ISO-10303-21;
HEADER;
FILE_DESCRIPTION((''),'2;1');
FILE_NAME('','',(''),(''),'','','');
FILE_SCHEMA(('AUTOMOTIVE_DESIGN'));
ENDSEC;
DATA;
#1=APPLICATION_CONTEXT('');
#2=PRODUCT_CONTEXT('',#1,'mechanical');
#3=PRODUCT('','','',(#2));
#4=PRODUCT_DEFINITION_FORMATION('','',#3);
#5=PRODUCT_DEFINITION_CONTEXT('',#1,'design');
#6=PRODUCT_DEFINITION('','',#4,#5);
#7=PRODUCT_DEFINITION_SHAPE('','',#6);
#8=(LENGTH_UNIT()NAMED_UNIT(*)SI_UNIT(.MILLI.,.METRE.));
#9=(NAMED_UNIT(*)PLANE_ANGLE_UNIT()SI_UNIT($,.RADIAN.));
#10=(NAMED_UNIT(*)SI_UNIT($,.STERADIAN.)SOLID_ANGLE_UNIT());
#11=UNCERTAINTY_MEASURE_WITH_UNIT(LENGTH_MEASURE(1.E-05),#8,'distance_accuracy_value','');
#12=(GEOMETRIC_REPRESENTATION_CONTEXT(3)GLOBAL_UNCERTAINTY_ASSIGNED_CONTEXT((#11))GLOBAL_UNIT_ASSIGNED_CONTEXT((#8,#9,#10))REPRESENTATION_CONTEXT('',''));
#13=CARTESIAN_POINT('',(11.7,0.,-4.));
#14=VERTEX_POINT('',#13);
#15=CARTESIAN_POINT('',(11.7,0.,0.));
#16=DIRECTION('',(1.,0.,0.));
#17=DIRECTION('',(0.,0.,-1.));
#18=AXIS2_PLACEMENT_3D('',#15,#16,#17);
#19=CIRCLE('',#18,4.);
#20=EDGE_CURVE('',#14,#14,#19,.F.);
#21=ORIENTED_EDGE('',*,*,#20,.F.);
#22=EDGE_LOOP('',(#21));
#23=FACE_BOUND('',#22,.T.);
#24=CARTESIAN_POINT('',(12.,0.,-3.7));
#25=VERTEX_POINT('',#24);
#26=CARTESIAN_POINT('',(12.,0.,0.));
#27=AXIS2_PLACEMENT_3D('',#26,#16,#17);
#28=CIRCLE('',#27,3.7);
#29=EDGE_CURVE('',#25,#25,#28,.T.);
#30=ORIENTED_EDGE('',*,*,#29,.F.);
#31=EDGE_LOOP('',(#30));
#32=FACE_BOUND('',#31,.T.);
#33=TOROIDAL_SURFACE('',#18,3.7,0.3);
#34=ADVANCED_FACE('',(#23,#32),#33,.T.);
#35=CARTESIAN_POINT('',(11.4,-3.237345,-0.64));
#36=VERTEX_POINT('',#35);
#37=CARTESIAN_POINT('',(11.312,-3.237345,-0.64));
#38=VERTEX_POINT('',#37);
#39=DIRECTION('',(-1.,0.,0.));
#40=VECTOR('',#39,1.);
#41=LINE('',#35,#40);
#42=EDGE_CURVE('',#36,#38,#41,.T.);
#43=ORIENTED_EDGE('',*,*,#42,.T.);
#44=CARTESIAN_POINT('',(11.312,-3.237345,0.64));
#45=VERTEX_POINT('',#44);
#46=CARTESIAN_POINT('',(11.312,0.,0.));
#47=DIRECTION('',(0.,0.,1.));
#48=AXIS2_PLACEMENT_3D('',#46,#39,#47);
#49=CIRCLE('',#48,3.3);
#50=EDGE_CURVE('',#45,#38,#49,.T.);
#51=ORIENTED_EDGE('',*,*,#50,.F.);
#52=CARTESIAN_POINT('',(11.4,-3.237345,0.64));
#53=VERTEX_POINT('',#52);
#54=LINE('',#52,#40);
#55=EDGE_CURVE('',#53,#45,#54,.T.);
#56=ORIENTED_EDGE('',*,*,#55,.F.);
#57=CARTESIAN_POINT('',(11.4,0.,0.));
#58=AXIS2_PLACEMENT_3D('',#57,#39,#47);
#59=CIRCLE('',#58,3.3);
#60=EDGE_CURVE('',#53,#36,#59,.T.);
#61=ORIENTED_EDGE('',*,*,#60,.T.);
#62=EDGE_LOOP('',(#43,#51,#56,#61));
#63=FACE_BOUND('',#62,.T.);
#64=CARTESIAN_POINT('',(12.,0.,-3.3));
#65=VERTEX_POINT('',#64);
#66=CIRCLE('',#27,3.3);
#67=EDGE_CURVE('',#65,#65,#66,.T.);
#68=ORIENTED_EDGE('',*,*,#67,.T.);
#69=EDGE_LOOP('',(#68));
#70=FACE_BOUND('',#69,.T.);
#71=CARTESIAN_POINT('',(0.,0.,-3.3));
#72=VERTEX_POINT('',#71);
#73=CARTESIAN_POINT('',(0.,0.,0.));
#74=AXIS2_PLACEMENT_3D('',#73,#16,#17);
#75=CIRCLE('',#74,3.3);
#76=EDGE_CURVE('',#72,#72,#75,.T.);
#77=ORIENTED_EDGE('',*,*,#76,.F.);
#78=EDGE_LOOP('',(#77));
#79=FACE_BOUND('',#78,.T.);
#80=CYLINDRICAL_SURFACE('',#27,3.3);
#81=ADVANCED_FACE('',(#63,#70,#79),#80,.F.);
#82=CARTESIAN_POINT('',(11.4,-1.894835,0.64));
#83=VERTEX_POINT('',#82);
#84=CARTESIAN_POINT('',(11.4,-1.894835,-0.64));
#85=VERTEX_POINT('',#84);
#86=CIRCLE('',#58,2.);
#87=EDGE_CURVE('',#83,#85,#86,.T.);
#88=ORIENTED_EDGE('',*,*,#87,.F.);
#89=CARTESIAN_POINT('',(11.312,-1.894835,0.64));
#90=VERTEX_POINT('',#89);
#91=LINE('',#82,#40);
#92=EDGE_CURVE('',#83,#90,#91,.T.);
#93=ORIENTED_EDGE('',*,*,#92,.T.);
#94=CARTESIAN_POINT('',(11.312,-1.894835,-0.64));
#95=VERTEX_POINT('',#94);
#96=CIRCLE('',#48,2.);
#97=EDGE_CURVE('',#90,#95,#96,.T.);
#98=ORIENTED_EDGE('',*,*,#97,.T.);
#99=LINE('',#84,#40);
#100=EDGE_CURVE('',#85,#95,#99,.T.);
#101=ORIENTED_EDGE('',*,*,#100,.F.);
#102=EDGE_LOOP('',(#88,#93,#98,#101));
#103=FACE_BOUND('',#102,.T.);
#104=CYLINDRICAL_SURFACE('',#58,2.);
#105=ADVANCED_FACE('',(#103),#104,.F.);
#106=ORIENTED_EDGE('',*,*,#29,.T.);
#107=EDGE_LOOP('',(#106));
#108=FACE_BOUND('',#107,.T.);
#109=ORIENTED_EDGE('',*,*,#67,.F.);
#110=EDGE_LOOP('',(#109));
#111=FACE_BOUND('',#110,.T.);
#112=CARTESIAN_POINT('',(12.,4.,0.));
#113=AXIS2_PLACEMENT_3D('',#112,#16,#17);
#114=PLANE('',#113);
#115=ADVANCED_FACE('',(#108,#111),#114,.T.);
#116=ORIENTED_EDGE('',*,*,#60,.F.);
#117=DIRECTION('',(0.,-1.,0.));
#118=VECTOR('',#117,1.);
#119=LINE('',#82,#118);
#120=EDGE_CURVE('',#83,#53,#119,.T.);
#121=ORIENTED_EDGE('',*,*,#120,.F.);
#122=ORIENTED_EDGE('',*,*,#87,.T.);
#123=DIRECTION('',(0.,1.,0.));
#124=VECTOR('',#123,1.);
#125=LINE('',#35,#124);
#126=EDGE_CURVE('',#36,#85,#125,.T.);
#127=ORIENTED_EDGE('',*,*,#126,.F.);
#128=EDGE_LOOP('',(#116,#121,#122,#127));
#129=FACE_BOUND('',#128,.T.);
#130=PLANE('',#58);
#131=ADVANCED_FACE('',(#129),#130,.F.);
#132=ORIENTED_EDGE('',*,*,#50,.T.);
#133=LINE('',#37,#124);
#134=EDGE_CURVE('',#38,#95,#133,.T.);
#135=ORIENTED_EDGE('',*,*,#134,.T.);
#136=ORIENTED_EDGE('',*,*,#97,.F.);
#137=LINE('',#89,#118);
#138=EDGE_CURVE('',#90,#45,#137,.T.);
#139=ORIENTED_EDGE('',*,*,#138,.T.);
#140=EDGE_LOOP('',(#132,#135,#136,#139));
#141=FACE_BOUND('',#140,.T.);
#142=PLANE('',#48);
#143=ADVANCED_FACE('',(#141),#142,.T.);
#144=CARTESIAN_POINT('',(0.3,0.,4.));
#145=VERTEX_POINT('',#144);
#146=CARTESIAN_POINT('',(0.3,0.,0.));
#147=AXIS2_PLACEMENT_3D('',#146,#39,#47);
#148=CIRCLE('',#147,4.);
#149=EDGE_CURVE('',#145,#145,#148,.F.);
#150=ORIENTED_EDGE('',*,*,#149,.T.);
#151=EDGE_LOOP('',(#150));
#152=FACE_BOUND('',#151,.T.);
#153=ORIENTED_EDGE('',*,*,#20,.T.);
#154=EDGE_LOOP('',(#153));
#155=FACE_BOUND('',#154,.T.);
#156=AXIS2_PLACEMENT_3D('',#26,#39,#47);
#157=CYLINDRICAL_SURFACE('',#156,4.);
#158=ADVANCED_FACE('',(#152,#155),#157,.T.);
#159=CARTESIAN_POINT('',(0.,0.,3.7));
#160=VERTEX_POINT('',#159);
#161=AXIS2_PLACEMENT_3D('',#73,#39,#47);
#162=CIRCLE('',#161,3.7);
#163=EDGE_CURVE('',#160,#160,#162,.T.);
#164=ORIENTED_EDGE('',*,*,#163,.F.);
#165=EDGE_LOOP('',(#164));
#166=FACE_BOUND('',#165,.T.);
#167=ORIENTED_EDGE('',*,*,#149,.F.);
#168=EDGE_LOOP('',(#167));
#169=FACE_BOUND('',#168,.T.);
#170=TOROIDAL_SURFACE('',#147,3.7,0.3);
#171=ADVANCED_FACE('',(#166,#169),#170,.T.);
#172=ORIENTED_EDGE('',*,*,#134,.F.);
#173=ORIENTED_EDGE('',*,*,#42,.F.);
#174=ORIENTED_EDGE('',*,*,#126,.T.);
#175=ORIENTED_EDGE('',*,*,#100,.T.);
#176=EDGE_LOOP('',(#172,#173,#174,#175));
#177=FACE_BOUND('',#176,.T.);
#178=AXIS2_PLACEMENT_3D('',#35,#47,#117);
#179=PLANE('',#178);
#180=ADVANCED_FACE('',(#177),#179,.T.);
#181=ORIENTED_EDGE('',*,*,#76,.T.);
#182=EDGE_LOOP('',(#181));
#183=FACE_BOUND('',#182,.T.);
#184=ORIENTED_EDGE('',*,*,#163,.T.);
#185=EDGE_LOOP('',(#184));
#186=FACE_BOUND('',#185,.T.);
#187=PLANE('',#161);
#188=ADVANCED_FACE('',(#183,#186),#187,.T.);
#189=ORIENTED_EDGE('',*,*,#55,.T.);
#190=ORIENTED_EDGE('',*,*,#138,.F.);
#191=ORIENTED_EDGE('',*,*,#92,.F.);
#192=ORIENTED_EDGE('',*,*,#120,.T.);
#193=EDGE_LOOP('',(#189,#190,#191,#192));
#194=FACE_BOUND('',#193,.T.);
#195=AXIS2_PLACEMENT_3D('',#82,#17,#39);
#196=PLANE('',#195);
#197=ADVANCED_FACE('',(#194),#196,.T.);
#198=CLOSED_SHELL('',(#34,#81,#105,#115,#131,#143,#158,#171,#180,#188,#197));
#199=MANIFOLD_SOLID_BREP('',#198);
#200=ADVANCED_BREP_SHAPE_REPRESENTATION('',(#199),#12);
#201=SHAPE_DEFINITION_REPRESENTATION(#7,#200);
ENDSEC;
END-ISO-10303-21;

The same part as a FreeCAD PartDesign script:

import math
import FreeCAD as App
import Part
import Sketcher
from FreeCAD import Vector
Q = App.Units.Quantity


def edges_at(feature, points):
    """Names of the edges that pass closest to the given points."""
    edges = feature.Shape.Edges
    near = lambda p: min(range(len(edges)), key=lambda i: edges[i].distToShape(Part.Vertex(*p))[0])
    return sorted({f"Edge{near(p) + 1}" for p in points})

doc = App.newDocument("Part")
body = doc.addObject("PartDesign::Body", "Body")

sketch1 = body.newObject("Sketcher::SketchObject", "Sketch")
sketch1.AttachmentSupport = (doc.getObject("XY_Plane"), [""])
sketch1.MapMode = "FlatFace"
sketch1.addGeometry([
    Part.LineSegment(Vector(12, 4, 0), Vector(12, 0, 0)),
    Part.LineSegment(Vector(12, 0, 0), Vector(0, 0, 0)),
    Part.LineSegment(Vector(0, 0, 0), Vector(0, 4, 0)),
    Part.LineSegment(Vector(0, 4, 0), Vector(12, 4, 0)),
], False)
sketch1.addConstraint([
    Sketcher.Constraint("Coincident", 0, 2, 1, 1),
    Sketcher.Constraint("Coincident", 1, 2, 2, 1),
    Sketcher.Constraint("Coincident", 2, 2, 3, 1),
    Sketcher.Constraint("Coincident", 3, 2, 0, 1),
    Sketcher.Constraint("Vertical", 0),
    Sketcher.Constraint("Horizontal", 1),
    Sketcher.Constraint("Vertical", 2),
    Sketcher.Constraint("Horizontal", 3),
    Sketcher.Constraint("Coincident", 1, 2, -1, 1),
    Sketcher.Constraint("DistanceX", 1, 2, 1, 1, Q("12 mm")),
    Sketcher.Constraint("DistanceY", 0, 2, 0, 1, Q("4 mm")),
])
revolution = body.newObject("PartDesign::Revolution", "Revolution")
revolution.Profile = sketch1
revolution.ReferenceAxis = (sketch1, ["H_Axis"])
revolution.Angle = 360

sketch2 = body.newObject("Sketcher::SketchObject", "Sketch001")
sketch2.AttachmentSupport = (doc.getObject("YZ_Plane"), [""])
sketch2.MapMode = "FlatFace"
sketch2.AttachmentOffset = App.Placement(Vector(0, 0, 12), App.Rotation())
sketch2.addGeometry(Part.Circle(Vector(0, 0, 0), Vector(0, 0, 1), 3.3), False)
sketch2.addConstraint([
    Sketcher.Constraint("Coincident", 0, 3, -1, 1),
    Sketcher.Constraint("Diameter", 0, Q("6.6 mm")),
])
doc.recompute()
hole = body.newObject("PartDesign::Hole", "Hole")
hole.Profile = sketch2
hole.ThreadType = "None"
hole.Diameter = 6.6
hole.DepthType = "ThroughAll"

sketch3 = body.newObject("Sketcher::SketchObject", "Sketch002")
sketch3.AttachmentSupport = (doc.getObject("YZ_Plane"), [""])
sketch3.MapMode = "FlatFace"
sketch3.AttachmentOffset = App.Placement(Vector(0, 0, 11.312), App.Rotation())
sketch3.addGeometry([
    Part.LineSegment(Vector(-1.9, 0.6, 0), Vector(-3.2, 0.6, 0)),
    Part.ArcOfCircle(Part.Circle(Vector(0, 0, 0), Vector(0, 0, 1), 3.3), math.radians(-169), math.radians(169)),
    Part.LineSegment(Vector(-3.2, -0.6, 0), Vector(-1.9, -0.6, 0)),
    Part.ArcOfCircle(Part.Circle(Vector(0, 0, 0), Vector(0, 0, 1), 2), math.radians(161), math.radians(199)),
], False)
sketch3.addConstraint([
    Sketcher.Constraint("Coincident", 0, 2, 1, 2),
    Sketcher.Constraint("Coincident", 1, 1, 2, 1),
    Sketcher.Constraint("Coincident", 2, 2, 3, 2),
    Sketcher.Constraint("Coincident", 3, 1, 0, 1),
    Sketcher.Constraint("Horizontal", 0),
    Sketcher.Constraint("Horizontal", 2),
    Sketcher.Constraint("Coincident", 1, 3, -1, 1),
    Sketcher.Constraint("Coincident", 3, 3, -1, 1),
    Sketcher.Constraint("Vertical", 0, 2, 1, 1),
    Sketcher.Constraint("Radius", 3, Q("2 mm")),
    Sketcher.Constraint("Radius", 1, Q("3.3 mm")),
    Sketcher.Constraint("DistanceY", -1, 1, 0, 2, Q("0.64 mm")),
])
pad1 = body.newObject("PartDesign::Pad", "Pad")
pad1.Profile = sketch3
pad1.Length = 0.088

sketch4 = body.newObject("Sketcher::SketchObject", "Sketch003")
sketch4.AttachmentSupport = (doc.getObject("XY_Plane"), [""])
sketch4.MapMode = "FlatFace"
sketch4.addGeometry([
    Part.LineSegment(Vector(11.4, 2, 0), Vector(11.4, 0, 0)),
    Part.LineSegment(Vector(11.4, 0, 0), Vector(0, 0, 0)),
    Part.LineSegment(Vector(0, 0, 0), Vector(0, 3.3, 0)),
    Part.LineSegment(Vector(0, 3.3, 0), Vector(0.6, 3.3, 0)),
    Part.LineSegment(Vector(0.6, 3.3, 0), Vector(0.6, 2, 0)),
    Part.LineSegment(Vector(0.6, 2, 0), Vector(11.4, 2, 0)),
], False)
sketch4.addConstraint([
    Sketcher.Constraint("Coincident", 0, 2, 1, 1),
    Sketcher.Constraint("Coincident", 1, 2, 2, 1),
    Sketcher.Constraint("Coincident", 2, 2, 3, 1),
    Sketcher.Constraint("Coincident", 3, 2, 4, 1),
    Sketcher.Constraint("Coincident", 4, 2, 5, 1),
    Sketcher.Constraint("Coincident", 5, 2, 0, 1),
    Sketcher.Constraint("Vertical", 0),
    Sketcher.Constraint("Horizontal", 1),
    Sketcher.Constraint("Vertical", 2),
    Sketcher.Constraint("Horizontal", 3),
    Sketcher.Constraint("Vertical", 4),
    Sketcher.Constraint("Horizontal", 5),
    Sketcher.Constraint("Coincident", 1, 2, -1, 1),
    Sketcher.Constraint("DistanceY", 0, 2, 0, 1, Q("2 mm")),
    Sketcher.Constraint("DistanceX", 1, 2, 1, 1, Q("11.4 mm")),
    Sketcher.Constraint("DistanceX", 3, 1, 3, 2, Q("0.6 mm")),
    Sketcher.Constraint("DistanceY", 2, 1, 2, 2, Q("3.3 mm")),
])
groove = body.newObject("PartDesign::Groove", "Groove")
groove.Profile = sketch4
groove.ReferenceAxis = (sketch4, ["H_Axis"])
groove.Angle = 360
doc.recompute()

fillet = body.newObject("PartDesign::Fillet", "Fillet")
fillet.Base = (groove, edges_at(groove, [(0, 0, -4), (12, 0, -4)]))
fillet.Radius = 0.3

doc.recompute()
